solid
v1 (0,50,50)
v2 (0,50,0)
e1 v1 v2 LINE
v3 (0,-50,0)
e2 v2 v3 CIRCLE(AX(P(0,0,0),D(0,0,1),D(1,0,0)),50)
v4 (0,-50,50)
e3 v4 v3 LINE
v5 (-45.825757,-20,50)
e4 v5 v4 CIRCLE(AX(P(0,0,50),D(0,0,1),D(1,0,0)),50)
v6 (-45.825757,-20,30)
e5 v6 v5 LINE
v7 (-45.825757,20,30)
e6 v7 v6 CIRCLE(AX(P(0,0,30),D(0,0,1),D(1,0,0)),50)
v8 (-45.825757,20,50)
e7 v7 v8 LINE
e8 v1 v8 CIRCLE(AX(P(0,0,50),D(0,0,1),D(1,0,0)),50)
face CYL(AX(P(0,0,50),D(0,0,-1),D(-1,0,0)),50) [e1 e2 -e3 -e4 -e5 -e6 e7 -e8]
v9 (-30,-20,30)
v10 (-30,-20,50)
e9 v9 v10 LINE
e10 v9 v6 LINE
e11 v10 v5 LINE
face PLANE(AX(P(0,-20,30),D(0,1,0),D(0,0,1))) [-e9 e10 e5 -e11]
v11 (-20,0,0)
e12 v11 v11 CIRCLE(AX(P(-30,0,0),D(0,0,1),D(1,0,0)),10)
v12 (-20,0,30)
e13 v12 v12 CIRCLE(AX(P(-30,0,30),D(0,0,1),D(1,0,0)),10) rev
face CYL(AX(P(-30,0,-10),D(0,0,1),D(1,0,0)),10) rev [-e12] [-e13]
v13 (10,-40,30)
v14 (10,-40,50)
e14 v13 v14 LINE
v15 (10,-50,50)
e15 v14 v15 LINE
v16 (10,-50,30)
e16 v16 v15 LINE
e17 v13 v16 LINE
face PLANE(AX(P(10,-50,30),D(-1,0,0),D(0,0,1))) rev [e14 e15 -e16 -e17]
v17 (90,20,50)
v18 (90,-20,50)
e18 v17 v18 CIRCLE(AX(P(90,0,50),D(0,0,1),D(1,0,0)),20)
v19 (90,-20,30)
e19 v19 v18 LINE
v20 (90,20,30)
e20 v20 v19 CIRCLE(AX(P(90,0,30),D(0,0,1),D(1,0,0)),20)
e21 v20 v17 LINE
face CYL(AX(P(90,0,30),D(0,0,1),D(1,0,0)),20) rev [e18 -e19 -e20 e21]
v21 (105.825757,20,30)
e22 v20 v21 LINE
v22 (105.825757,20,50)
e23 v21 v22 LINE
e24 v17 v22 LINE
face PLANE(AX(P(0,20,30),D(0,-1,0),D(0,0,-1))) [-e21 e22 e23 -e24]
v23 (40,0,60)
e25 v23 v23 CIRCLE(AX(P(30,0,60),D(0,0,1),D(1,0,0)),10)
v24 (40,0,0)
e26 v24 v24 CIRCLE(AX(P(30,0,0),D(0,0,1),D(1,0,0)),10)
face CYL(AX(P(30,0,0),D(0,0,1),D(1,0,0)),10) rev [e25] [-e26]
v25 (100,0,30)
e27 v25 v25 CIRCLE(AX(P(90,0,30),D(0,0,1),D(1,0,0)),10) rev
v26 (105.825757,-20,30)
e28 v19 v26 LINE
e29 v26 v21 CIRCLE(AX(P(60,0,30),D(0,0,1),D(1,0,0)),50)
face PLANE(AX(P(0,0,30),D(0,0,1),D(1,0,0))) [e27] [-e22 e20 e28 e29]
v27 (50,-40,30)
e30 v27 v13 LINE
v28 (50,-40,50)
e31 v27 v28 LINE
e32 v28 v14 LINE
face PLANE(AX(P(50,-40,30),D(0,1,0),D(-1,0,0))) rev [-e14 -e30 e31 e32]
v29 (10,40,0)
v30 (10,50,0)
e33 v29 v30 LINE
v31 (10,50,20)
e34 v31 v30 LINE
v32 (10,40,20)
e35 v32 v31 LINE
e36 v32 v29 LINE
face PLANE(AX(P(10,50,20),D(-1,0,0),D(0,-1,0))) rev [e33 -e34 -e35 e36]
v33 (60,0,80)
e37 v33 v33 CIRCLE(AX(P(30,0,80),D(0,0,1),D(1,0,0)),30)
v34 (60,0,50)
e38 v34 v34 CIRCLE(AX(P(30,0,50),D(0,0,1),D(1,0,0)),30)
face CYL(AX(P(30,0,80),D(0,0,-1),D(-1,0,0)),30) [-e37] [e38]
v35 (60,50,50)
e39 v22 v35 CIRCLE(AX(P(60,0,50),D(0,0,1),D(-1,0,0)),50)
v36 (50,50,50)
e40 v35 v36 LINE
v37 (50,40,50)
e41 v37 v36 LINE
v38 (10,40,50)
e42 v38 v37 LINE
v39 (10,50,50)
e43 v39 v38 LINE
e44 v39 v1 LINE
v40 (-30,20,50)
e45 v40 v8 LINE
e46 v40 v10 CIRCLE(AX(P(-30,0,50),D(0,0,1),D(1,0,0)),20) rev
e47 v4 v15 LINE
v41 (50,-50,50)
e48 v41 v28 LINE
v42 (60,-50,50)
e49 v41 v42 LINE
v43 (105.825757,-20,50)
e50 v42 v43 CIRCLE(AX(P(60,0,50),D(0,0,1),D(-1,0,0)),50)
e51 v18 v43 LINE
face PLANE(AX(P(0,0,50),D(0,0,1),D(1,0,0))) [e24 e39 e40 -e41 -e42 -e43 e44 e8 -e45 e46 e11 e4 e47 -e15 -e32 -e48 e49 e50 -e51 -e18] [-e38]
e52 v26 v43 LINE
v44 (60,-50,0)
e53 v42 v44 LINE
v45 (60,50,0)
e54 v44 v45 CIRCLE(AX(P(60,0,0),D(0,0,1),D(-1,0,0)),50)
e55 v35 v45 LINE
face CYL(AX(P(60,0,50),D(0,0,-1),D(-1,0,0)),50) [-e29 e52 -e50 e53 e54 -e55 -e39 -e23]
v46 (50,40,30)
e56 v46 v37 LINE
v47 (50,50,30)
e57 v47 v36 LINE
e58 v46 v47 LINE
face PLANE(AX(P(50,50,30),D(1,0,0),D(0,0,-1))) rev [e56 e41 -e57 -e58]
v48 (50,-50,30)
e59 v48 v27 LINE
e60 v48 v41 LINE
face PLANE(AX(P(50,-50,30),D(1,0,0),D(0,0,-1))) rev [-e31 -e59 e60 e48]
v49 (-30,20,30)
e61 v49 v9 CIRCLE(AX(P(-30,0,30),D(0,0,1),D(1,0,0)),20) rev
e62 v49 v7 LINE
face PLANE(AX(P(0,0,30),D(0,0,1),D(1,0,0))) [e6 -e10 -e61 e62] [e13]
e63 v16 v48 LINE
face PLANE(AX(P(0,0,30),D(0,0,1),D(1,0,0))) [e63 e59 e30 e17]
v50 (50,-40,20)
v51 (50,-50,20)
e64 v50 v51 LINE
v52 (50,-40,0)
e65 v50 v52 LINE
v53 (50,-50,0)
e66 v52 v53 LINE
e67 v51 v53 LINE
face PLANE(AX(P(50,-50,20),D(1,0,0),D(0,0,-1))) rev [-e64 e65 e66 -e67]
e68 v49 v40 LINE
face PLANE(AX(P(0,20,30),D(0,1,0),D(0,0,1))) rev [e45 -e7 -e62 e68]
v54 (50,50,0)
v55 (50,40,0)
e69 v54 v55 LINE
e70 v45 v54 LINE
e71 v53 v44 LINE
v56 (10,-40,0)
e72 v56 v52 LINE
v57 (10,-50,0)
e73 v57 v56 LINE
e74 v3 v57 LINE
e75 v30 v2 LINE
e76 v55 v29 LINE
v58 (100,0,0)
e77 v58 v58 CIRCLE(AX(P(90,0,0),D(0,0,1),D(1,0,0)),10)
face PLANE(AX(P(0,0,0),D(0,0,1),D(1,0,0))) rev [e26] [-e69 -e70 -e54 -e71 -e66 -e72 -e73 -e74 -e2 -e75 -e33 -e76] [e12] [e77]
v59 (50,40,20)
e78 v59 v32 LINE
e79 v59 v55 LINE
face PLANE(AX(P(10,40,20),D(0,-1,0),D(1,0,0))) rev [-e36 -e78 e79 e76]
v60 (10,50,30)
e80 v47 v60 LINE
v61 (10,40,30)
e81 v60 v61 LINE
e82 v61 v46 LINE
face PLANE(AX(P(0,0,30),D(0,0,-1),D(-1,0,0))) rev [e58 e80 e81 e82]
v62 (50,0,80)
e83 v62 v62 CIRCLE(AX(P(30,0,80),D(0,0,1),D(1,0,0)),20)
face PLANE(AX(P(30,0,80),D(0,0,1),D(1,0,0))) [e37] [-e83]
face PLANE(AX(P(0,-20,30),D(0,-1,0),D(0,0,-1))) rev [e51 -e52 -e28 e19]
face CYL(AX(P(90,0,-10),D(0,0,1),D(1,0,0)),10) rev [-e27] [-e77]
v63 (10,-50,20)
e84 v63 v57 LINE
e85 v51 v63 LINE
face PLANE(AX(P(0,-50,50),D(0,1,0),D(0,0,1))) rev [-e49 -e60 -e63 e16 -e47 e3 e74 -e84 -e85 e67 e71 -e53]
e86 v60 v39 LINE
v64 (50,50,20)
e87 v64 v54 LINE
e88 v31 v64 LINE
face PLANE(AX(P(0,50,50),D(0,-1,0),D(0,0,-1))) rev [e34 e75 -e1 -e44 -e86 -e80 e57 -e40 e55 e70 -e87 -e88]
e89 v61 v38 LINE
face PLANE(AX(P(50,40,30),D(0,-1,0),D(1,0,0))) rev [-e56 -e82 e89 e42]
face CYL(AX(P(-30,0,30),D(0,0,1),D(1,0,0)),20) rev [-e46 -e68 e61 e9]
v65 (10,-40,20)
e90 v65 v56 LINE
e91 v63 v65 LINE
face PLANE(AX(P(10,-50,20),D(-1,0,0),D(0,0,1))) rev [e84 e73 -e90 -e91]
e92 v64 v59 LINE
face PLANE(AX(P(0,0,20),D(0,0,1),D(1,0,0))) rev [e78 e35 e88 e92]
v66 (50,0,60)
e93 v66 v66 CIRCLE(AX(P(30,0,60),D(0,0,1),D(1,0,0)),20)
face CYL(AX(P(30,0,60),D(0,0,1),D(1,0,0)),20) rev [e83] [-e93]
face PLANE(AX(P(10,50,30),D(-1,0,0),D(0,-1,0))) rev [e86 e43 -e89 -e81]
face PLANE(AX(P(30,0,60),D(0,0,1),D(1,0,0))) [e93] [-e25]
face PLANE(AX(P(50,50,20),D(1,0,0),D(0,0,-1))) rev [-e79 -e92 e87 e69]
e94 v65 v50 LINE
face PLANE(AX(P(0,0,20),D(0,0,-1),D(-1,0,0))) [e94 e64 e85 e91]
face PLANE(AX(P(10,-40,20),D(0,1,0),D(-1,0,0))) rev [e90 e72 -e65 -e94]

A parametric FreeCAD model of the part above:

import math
import FreeCAD as App
import Part
import Sketcher
from FreeCAD import Vector
Q = App.Units.Quantity

doc = App.newDocument("Part")
body = doc.addObject("PartDesign::Body", "Body")

sketch1 = doc.addObject("Sketcher::SketchObject", "Sketch")
body.addObject(sketch1)
sketch1.AttachmentSupport = (doc.XY_Plane, [""])
sketch1.MapMode = "FlatFace"
sketch1.addGeometry(Part.LineSegment(Vector(60, 50, 0), Vector(0, 50, 0)), False)
sketch1.addGeometry(Part.ArcOfCircle(Part.Circle(Vector(0, 0, 0), Vector(0, 0, 1), 50), math.radians(90), math.radians(270)), False)
sketch1.addGeometry(Part.LineSegment(Vector(0, -50, 0), Vector(60, -50, 0)), False)
sketch1.addGeometry(Part.ArcOfCircle(Part.Circle(Vector(60, 0, 0), Vector(0, 0, 1), 50), math.radians(-90), math.radians(90)), False)
sketch1.addConstraint(Sketcher.Constraint("Tangent", 0, 2, 1, 1))
sketch1.addConstraint(Sketcher.Constraint("Tangent", 1, 2, 2, 1))
sketch1.addConstraint(Sketcher.Constraint("Tangent", 2, 2, 3, 1))
sketch1.addConstraint(Sketcher.Constraint("Tangent", 3, 2, 0, 1))
sketch1.addConstraint(Sketcher.Constraint("Horizontal", 0))
sketch1.addConstraint(Sketcher.Constraint("Horizontal", 2))
sketch1.addConstraint(Sketcher.Constraint("Coincident", 1, 3, -1, 1))
sketch1.addConstraint(Sketcher.Constraint("Radius", 1, Q("50 mm")))
sketch1.addConstraint(Sketcher.Constraint("DistanceX", 0, 2, 0, 1, Q("60 mm")))
pad1 = doc.addObject("PartDesign::Pad", "Pad")
body.addObject(pad1)
pad1.Profile = sketch1
pad1.Length = 50

sketch2 = doc.addObject("Sketcher::SketchObject", "Sketch001")
body.addObject(sketch2)
sketch2.AttachmentSupport = (doc.XY_Plane, [""])
sketch2.MapMode = "FlatFace"
sketch2.AttachmentOffset = App.Placement(Vector(0, 0, 50), App.Rotation())
sketch2.addGeometry(Part.Circle(Vector(30, 0, 0), Vector(0, 0, 1), 10), False)
sketch2.addConstraint(Sketcher.Constraint("PointOnObject", 0, 3, -1))
sketch2.addConstraint(Sketcher.Constraint("Diameter", 0, Q("20 mm")))
sketch2.addConstraint(Sketcher.Constraint("DistanceX", -1, 1, 0, 3, Q("30 mm")))
pocket1 = doc.addObject("PartDesign::Pocket", "Pocket")
body.addObject(pocket1)
pocket1.Profile = sketch2
pocket1.Length = 50

sketch3 = doc.addObject("Sketcher::SketchObject", "Sketch002")
body.addObject(sketch3)
sketch3.AttachmentSupport = (doc.XY_Plane, [""])
sketch3.MapMode = "FlatFace"
sketch3.AttachmentOffset = App.Placement(Vector(0, 0, 50), App.Rotation())
sketch3.addGeometry(Part.Circle(Vector(30, 0, 0), Vector(0, 0, 1), 30), False)
sketch3.addConstraint(Sketcher.Constraint("PointOnObject", 0, 3, -1))
sketch3.addConstraint(Sketcher.Constraint("Diameter", 0, Q("60 mm")))
sketch3.addConstraint(Sketcher.Constraint("DistanceX", -1, 1, 0, 3, Q("30 mm")))
pad2 = doc.addObject("PartDesign::Pad", "Pad001")
body.addObject(pad2)
pad2.Profile = sketch3
pad2.Length = 30

sketch4 = doc.addObject("Sketcher::SketchObject", "Sketch003")
body.addObject(sketch4)
sketch4.AttachmentSupport = (doc.XY_Plane, [""])
sketch4.MapMode = "FlatFace"
sketch4.AttachmentOffset = App.Placement(Vector(0, 0, 80), App.Rotation())
sketch4.addGeometry(Part.Circle(Vector(30, 0, 0), Vector(0, 0, 1), 20), False)
sketch4.addConstraint(Sketcher.Constraint("PointOnObject", 0, 3, -1))
sketch4.addConstraint(Sketcher.Constraint("Diameter", 0, Q("40 mm")))
sketch4.addConstraint(Sketcher.Constraint("DistanceX", -1, 1, 0, 3, Q("30 mm")))
pocket2 = doc.addObject("PartDesign::Pocket", "Pocket001")
body.addObject(pocket2)
pocket2.Profile = sketch4
pocket2.Length = 20

sketch5 = doc.addObject("Sketcher::SketchObject", "Sketch004")
body.addObject(sketch5)
sketch5.AttachmentSupport = (doc.XY_Plane, [""])
sketch5.MapMode = "FlatFace"
sketch5.AttachmentOffset = App.Placement(Vector(0, 0, 50), App.Rotation())
sketch5.addGeometry(Part.Circle(Vector(30, 0, 0), Vector(0, 0, 1), 10), False)
sketch5.addConstraint(Sketcher.Constraint("PointOnObject", 0, 3, -1))
sketch5.addConstraint(Sketcher.Constraint("Diameter", 0, Q("20 mm")))
sketch5.addConstraint(Sketcher.Constraint("DistanceX", -1, 1, 0, 3, Q("30 mm")))
pocket3 = doc.addObject("PartDesign::Pocket", "Pocket002")
body.addObject(pocket3)
pocket3.Profile = sketch5
pocket3.Length = 20
pocket3.Reversed = True

sketch6 = doc.addObject("Sketcher::SketchObject", "Sketch005")
body.addObject(sketch6)
sketch6.AttachmentSupport = (doc.XY_Plane, [""])
sketch6.MapMode = "FlatFace"
sketch6.AttachmentOffset = App.Placement(Vector(0, 0, 50), App.Rotation())
sketch6.addGeometry(Part.LineSegment(Vector(10, 50, 0), Vector(10, 40, 0)), False)
sketch6.addGeometry(Part.LineSegment(Vector(10, 40, 0), Vector(50, 40, 0)), False)
sketch6.addGeometry(Part.LineSegment(Vector(50, 40, 0), Vector(50, 50, 0)), False)
sketch6.addGeometry(Part.LineSegment(Vector(50, 50, 0), Vector(10, 50, 0)), False)
sketch6.addConstraint(Sketcher.Constraint("Coincident", 0, 2, 1, 1))
sketch6.addConstraint(Sketcher.Constraint("Coincident", 1, 2, 2, 1))
sketch6.addConstraint(Sketcher.Constraint("Coincident", 2, 2, 3, 1))
sketch6.addConstraint(Sketcher.Constraint("Coincident", 3, 2, 0, 1))
sketch6.addConstraint(Sketcher.Constraint("Vertical", 0))
sketch6.addConstraint(Sketcher.Constraint("Horizontal", 1))
sketch6.addConstraint(Sketcher.Constraint("Vertical", 2))
sketch6.addConstraint(Sketcher.Constraint("Horizontal", 3))
sketch6.addConstraint(Sketcher.Constraint("DistanceX", 1, 1, 1, 2, Q("40 mm")))
sketch6.addConstraint(Sketcher.Constraint("DistanceY", 0, 2, 0, 1, Q("10 mm")))
sketch6.addConstraint(Sketcher.Constraint("DistanceX", -1, 1, 0, 2, Q("10 mm")))
sketch6.addConstraint(Sketcher.Constraint("DistanceY", -1, 1, 0, 2, Q("40 mm")))
pocket4 = doc.addObject("PartDesign::Pocket", "Pocket003")
body.addObject(pocket4)
pocket4.Profile = sketch6
pocket4.Length = 20

sketch7 = doc.addObject("Sketcher::SketchObject", "Sketch006")
body.addObject(sketch7)
sketch7.AttachmentSupport = (doc.XY_Plane, [""])
sketch7.MapMode = "FlatFace"
sketch7.addGeometry(Part.LineSegment(Vector(50, 50, 0), Vector(50, 40, 0)), False)
sketch7.addGeometry(Part.LineSegment(Vector(50, 40, 0), Vector(10, 40, 0)), False)
sketch7.addGeometry(Part.LineSegment(Vector(10, 40, 0), Vector(10, 50, 0)), False)
sketch7.addGeometry(Part.LineSegment(Vector(10, 50, 0), Vector(50, 50, 0)), False)
sketch7.addConstraint(Sketcher.Constraint("Coincident", 0, 2, 1, 1))
sketch7.addConstraint(Sketcher.Constraint("Coincident", 1, 2, 2, 1))
sketch7.addConstraint(Sketcher.Constraint("Coincident", 2, 2, 3, 1))
sketch7.addConstraint(Sketcher.Constraint("Coincident", 3, 2, 0, 1))
sketch7.addConstraint(Sketcher.Constraint("Vertical", 0))
sketch7.addConstraint(Sketcher.Constraint("Horizontal", 1))
sketch7.addConstraint(Sketcher.Constraint("Vertical", 2))
sketch7.addConstraint(Sketcher.Constraint("Horizontal", 3))
sketch7.addConstraint(Sketcher.Constraint("DistanceX", 1, 2, 1, 1, Q("40 mm")))
sketch7.addConstraint(Sketcher.Constraint("DistanceY", 0, 2, 0, 1, Q("10 mm")))
sketch7.addConstraint(Sketcher.Constraint("DistanceX", -1, 1, 0, 2, Q("50 mm")))
sketch7.addConstraint(Sketcher.Constraint("DistanceY", -1, 1, 0, 2, Q("40 mm")))
pocket5 = doc.addObject("PartDesign::Pocket", "Pocket004")
body.addObject(pocket5)
pocket5.Profile = sketch7
pocket5.Length = 20
pocket5.Reversed = True

sketch8 = doc.addObject("Sketcher::SketchObject", "Sketch007")
body.addObject(sketch8)
sketch8.AttachmentSupport = (doc.XY_Plane, [""])
sketch8.MapMode = "FlatFace"
sketch8.AttachmentOffset = App.Placement(Vector(0, 0, 50), App.Rotation())
sketch8.addGeometry(Part.LineSegment(Vector(10, -40, 0), Vector(10, -50, 0)), False)
sketch8.addGeometry(Part.LineSegment(Vector(10, -50, 0), Vector(50, -50, 0)), False)
sketch8.addGeometry(Part.LineSegment(Vector(50, -50, 0), Vector(50, -40, 0)), False)
sketch8.addGeometry(Part.LineSegment(Vector(50, -40, 0), Vector(10, -40, 0)), False)
sketch8.addConstraint(Sketcher.Constraint("Coincident", 0, 2, 1, 1))
sketch8.addConstraint(Sketcher.Constraint("Coincident", 1, 2, 2, 1))
sketch8.addConstraint(Sketcher.Constraint("Coincident", 2, 2, 3, 1))
sketch8.addConstraint(Sketcher.Constraint("Coincident", 3, 2, 0, 1))
sketch8.addConstraint(Sketcher.Constraint("Vertical", 0))
sketch8.addConstraint(Sketcher.Constraint("Horizontal", 1))
sketch8.addConstraint(Sketcher.Constraint("Vertical", 2))
sketch8.addConstraint(Sketcher.Constraint("Horizontal", 3))
sketch8.addConstraint(Sketcher.Constraint("DistanceX", 1, 1, 1, 2, Q("40 mm")))
sketch8.addConstraint(Sketcher.Constraint("DistanceY", 0, 2, 0, 1, Q("10 mm")))
sketch8.addConstraint(Sketcher.Constraint("DistanceX", -1, 1, 0, 2, Q("10 mm")))
sketch8.addConstraint(Sketcher.Constraint("DistanceY", 0, 2, -1, 1, Q("50 mm")))
pocket6 = doc.addObject("PartDesign::Pocket", "Pocket005")
body.addObject(pocket6)
pocket6.Profile = sketch8
pocket6.Length = 20

sketch9 = doc.addObject("Sketcher::SketchObject", "Sketch008")
body.addObject(sketch9)
sketch9.AttachmentSupport = (doc.XY_Plane, [""])
sketch9.MapMode = "FlatFace"
sketch9.addGeometry(Part.LineSegment(Vector(50, -40, 0), Vector(50, -50, 0)), False)
sketch9.addGeometry(Part.LineSegment(Vector(50, -50, 0), Vector(10, -50, 0)), False)
sketch9.addGeometry(Part.LineSegment(Vector(10, -50, 0), Vector(10, -40, 0)), False)
sketch9.addGeometry(Part.LineSegment(Vector(10, -40, 0), Vector(50, -40, 0)), False)
sketch9.addConstraint(Sketcher.Constraint("Coincident", 0, 2, 1, 1))
sketch9.addConstraint(Sketcher.Constraint("Coincident", 1, 2, 2, 1))
sketch9.addConstraint(Sketcher.Constraint("Coincident", 2, 2, 3, 1))
sketch9.addConstraint(Sketcher.Constraint("Coincident", 3, 2, 0, 1))
sketch9.addConstraint(Sketcher.Constraint("Vertical", 0))
sketch9.addConstraint(Sketcher.Constraint("Horizontal", 1))
sketch9.addConstraint(Sketcher.Constraint("Vertical", 2))
sketch9.addConstraint(Sketcher.Constraint("Horizontal", 3))
sketch9.addConstraint(Sketcher.Constraint("DistanceX", 1, 2, 1, 1, Q("40 mm")))
sketch9.addConstraint(Sketcher.Constraint("DistanceY", 0, 2, 0, 1, Q("10 mm")))
sketch9.addConstraint(Sketcher.Constraint("DistanceX", -1, 1, 0, 2, Q("50 mm")))
sketch9.addConstraint(Sketcher.Constraint("DistanceY", 0, 2, -1, 1, Q("50 mm")))
pocket7 = doc.addObject("PartDesign::Pocket", "Pocket006")
body.addObject(pocket7)
pocket7.Profile = sketch9
pocket7.Length = 20
pocket7.Reversed = True

sketch10 = doc.addObject("Sketcher::SketchObject", "Sketch009")
body.addObject(sketch10)
sketch10.AttachmentSupport = (doc.XY_Plane, [""])
sketch10.MapMode = "FlatFace"
sketch10.AttachmentOffset = App.Placement(Vector(0, 0, 50), App.Rotation())
sketch10.addGeometry(Part.Circle(Vector(-30, 0, 0), Vector(0, 0, 1), 10), False)
sketch10.addGeometry(Part.Circle(Vector(90, 0, 0), Vector(0, 0, 1), 10), False)
sketch10.addConstraint(Sketcher.Constraint("Equal", 0, 1))
sketch10.addConstraint(Sketcher.Constraint("PointOnObject", 0, 3, -1))
sketch10.addConstraint(Sketcher.Constraint("PointOnObject", 1, 3, -1))
sketch10.addConstraint(Sketcher.Constraint("Diameter", 0, Q("20 mm")))
sketch10.addConstraint(Sketcher.Constraint("DistanceX", 0, 3, -1, 1, Q("30 mm")))
sketch10.addConstraint(Sketcher.Constraint("DistanceX", -1, 1, 1, 3, Q("90 mm")))
pocket8 = doc.addObject("PartDesign::Pocket", "Pocket007")
body.addObject(pocket8)
pocket8.Profile = sketch10
pocket8.Length = 60

sketch11 = doc.addObject("Sketcher::SketchObject", "Sketch010")
body.addObject(sketch11)
sketch11.AttachmentSupport = (doc.XY_Plane, [""])
sketch11.MapMode = "FlatFace"
sketch11.AttachmentOffset = App.Placement(Vector(0, 0, 50), App.Rotation())
sketch11.addGeometry(Part.ArcOfCircle(Part.Circle(Vector(-30, 0, 0), Vector(0, 0, 1), 20), math.radians(-90), math.radians(90)), False)
sketch11.addGeometry(Part.LineSegment(Vector(-30, 20, 0), Vector(-46, 20, 0)), False)
sketch11.addGeometry(Part.ArcOfCircle(Part.Circle(Vector(0, 0, 0), Vector(0, 0, 1), 50), math.radians(156), math.radians(204)), False)
sketch11.addGeometry(Part.LineSegment(Vector(-46, -20, 0), Vector(-30, -20, 0)), False)
sketch11.addGeometry(Part.Circle(Vector(-30, 0, 0), Vector(0, 0, 1), 10), False)
sketch11.addGeometry(Part.LineSegment(Vector(106, 20, 0), Vector(90, 20, 0)), False)
sketch11.addGeometry(Part.ArcOfCircle(Part.Circle(Vector(90, 0, 0), Vector(0, 0, 1), 20), math.radians(90), math.radians(270)), False)
sketch11.addGeometry(Part.LineSegment(Vector(90, -20, 0), Vector(106, -20, 0)), False)
sketch11.addGeometry(Part.ArcOfCircle(Part.Circle(Vector(60, 0, 0), Vector(0, 0, 1), 50), math.radians(-24), math.radians(24)), False)
sketch11.addGeometry(Part.Circle(Vector(90, 0, 0), Vector(0, 0, 1), 10), False)
sketch11.addConstraint(Sketcher.Constraint("Tangent", 0, 2, 1, 1))
sketch11.addConstraint(Sketcher.Constraint("Coincident", 1, 2, 2, 1))
sketch11.addConstraint(Sketcher.Constraint("Coincident", 2, 2, 3, 1))
sketch11.addConstraint(Sketcher.Constraint("Tangent", 3, 2, 0, 1))
sketch11.addConstraint(Sketcher.Constraint("Tangent", 5, 2, 6, 1))
sketch11.addConstraint(Sketcher.Constraint("Tangent", 6, 2, 7, 1))
sketch11.addConstraint(Sketcher.Constraint("Coincident", 7, 2, 8, 1))
sketch11.addConstraint(Sketcher.Constraint("Coincident", 8, 2, 5, 1))
sketch11.addConstraint(Sketcher.Constraint("Horizontal", 1))
sketch11.addConstraint(Sketcher.Constraint("Horizontal", 3))
sketch11.addConstraint(Sketcher.Constraint("Horizontal", 5))
sketch11.addConstraint(Sketcher.Constraint("Horizontal", 7))
sketch11.addConstraint(Sketcher.Constraint("Coincident", 2, 3, -1, 1))
sketch11.addConstraint(Sketcher.Constraint("Coincident", 4, 3, 0, 3))
sketch11.addConstraint(Sketcher.Constraint("Coincident", 9, 3, 6, 3))
sketch11.addConstraint(Sketcher.Constraint("Equal", 0, 6))
sketch11.addConstraint(Sketcher.Constraint("Equal", 2, 8))
sketch11.addConstraint(Sketcher.Constraint("Equal", 4, 9))
sketch11.addConstraint(Sketcher.Constraint("Symmetric", 7, 2, 8, 2, -1))
sketch11.addConstraint(Sketcher.Constraint("PointOnObject", 0, 3, -1))
sketch11.addConstraint(Sketcher.Constraint("Equal", 3, 5))
sketch11.addConstraint(Sketcher.Constraint("Diameter", 4, Q("20 mm")))
sketch11.addConstraint(Sketcher.Constraint("Radius", 0, Q("20 mm")))
sketch11.addConstraint(Sketcher.Constraint("Radius", 2, Q("50 mm")))
sketch11.addConstraint(Sketcher.Constraint("DistanceX", 0, 3, -1, 1, Q("30 mm")))
sketch11.addConstraint(Sketcher.Constraint("DistanceX", -1, 1, 6, 3, Q("90 mm")))
pocket9 = doc.addObject("PartDesign::Pocket", "Pocket008")
body.addObject(pocket9)
pocket9.Profile = sketch11
pocket9.Length = 20

doc.recompute()
